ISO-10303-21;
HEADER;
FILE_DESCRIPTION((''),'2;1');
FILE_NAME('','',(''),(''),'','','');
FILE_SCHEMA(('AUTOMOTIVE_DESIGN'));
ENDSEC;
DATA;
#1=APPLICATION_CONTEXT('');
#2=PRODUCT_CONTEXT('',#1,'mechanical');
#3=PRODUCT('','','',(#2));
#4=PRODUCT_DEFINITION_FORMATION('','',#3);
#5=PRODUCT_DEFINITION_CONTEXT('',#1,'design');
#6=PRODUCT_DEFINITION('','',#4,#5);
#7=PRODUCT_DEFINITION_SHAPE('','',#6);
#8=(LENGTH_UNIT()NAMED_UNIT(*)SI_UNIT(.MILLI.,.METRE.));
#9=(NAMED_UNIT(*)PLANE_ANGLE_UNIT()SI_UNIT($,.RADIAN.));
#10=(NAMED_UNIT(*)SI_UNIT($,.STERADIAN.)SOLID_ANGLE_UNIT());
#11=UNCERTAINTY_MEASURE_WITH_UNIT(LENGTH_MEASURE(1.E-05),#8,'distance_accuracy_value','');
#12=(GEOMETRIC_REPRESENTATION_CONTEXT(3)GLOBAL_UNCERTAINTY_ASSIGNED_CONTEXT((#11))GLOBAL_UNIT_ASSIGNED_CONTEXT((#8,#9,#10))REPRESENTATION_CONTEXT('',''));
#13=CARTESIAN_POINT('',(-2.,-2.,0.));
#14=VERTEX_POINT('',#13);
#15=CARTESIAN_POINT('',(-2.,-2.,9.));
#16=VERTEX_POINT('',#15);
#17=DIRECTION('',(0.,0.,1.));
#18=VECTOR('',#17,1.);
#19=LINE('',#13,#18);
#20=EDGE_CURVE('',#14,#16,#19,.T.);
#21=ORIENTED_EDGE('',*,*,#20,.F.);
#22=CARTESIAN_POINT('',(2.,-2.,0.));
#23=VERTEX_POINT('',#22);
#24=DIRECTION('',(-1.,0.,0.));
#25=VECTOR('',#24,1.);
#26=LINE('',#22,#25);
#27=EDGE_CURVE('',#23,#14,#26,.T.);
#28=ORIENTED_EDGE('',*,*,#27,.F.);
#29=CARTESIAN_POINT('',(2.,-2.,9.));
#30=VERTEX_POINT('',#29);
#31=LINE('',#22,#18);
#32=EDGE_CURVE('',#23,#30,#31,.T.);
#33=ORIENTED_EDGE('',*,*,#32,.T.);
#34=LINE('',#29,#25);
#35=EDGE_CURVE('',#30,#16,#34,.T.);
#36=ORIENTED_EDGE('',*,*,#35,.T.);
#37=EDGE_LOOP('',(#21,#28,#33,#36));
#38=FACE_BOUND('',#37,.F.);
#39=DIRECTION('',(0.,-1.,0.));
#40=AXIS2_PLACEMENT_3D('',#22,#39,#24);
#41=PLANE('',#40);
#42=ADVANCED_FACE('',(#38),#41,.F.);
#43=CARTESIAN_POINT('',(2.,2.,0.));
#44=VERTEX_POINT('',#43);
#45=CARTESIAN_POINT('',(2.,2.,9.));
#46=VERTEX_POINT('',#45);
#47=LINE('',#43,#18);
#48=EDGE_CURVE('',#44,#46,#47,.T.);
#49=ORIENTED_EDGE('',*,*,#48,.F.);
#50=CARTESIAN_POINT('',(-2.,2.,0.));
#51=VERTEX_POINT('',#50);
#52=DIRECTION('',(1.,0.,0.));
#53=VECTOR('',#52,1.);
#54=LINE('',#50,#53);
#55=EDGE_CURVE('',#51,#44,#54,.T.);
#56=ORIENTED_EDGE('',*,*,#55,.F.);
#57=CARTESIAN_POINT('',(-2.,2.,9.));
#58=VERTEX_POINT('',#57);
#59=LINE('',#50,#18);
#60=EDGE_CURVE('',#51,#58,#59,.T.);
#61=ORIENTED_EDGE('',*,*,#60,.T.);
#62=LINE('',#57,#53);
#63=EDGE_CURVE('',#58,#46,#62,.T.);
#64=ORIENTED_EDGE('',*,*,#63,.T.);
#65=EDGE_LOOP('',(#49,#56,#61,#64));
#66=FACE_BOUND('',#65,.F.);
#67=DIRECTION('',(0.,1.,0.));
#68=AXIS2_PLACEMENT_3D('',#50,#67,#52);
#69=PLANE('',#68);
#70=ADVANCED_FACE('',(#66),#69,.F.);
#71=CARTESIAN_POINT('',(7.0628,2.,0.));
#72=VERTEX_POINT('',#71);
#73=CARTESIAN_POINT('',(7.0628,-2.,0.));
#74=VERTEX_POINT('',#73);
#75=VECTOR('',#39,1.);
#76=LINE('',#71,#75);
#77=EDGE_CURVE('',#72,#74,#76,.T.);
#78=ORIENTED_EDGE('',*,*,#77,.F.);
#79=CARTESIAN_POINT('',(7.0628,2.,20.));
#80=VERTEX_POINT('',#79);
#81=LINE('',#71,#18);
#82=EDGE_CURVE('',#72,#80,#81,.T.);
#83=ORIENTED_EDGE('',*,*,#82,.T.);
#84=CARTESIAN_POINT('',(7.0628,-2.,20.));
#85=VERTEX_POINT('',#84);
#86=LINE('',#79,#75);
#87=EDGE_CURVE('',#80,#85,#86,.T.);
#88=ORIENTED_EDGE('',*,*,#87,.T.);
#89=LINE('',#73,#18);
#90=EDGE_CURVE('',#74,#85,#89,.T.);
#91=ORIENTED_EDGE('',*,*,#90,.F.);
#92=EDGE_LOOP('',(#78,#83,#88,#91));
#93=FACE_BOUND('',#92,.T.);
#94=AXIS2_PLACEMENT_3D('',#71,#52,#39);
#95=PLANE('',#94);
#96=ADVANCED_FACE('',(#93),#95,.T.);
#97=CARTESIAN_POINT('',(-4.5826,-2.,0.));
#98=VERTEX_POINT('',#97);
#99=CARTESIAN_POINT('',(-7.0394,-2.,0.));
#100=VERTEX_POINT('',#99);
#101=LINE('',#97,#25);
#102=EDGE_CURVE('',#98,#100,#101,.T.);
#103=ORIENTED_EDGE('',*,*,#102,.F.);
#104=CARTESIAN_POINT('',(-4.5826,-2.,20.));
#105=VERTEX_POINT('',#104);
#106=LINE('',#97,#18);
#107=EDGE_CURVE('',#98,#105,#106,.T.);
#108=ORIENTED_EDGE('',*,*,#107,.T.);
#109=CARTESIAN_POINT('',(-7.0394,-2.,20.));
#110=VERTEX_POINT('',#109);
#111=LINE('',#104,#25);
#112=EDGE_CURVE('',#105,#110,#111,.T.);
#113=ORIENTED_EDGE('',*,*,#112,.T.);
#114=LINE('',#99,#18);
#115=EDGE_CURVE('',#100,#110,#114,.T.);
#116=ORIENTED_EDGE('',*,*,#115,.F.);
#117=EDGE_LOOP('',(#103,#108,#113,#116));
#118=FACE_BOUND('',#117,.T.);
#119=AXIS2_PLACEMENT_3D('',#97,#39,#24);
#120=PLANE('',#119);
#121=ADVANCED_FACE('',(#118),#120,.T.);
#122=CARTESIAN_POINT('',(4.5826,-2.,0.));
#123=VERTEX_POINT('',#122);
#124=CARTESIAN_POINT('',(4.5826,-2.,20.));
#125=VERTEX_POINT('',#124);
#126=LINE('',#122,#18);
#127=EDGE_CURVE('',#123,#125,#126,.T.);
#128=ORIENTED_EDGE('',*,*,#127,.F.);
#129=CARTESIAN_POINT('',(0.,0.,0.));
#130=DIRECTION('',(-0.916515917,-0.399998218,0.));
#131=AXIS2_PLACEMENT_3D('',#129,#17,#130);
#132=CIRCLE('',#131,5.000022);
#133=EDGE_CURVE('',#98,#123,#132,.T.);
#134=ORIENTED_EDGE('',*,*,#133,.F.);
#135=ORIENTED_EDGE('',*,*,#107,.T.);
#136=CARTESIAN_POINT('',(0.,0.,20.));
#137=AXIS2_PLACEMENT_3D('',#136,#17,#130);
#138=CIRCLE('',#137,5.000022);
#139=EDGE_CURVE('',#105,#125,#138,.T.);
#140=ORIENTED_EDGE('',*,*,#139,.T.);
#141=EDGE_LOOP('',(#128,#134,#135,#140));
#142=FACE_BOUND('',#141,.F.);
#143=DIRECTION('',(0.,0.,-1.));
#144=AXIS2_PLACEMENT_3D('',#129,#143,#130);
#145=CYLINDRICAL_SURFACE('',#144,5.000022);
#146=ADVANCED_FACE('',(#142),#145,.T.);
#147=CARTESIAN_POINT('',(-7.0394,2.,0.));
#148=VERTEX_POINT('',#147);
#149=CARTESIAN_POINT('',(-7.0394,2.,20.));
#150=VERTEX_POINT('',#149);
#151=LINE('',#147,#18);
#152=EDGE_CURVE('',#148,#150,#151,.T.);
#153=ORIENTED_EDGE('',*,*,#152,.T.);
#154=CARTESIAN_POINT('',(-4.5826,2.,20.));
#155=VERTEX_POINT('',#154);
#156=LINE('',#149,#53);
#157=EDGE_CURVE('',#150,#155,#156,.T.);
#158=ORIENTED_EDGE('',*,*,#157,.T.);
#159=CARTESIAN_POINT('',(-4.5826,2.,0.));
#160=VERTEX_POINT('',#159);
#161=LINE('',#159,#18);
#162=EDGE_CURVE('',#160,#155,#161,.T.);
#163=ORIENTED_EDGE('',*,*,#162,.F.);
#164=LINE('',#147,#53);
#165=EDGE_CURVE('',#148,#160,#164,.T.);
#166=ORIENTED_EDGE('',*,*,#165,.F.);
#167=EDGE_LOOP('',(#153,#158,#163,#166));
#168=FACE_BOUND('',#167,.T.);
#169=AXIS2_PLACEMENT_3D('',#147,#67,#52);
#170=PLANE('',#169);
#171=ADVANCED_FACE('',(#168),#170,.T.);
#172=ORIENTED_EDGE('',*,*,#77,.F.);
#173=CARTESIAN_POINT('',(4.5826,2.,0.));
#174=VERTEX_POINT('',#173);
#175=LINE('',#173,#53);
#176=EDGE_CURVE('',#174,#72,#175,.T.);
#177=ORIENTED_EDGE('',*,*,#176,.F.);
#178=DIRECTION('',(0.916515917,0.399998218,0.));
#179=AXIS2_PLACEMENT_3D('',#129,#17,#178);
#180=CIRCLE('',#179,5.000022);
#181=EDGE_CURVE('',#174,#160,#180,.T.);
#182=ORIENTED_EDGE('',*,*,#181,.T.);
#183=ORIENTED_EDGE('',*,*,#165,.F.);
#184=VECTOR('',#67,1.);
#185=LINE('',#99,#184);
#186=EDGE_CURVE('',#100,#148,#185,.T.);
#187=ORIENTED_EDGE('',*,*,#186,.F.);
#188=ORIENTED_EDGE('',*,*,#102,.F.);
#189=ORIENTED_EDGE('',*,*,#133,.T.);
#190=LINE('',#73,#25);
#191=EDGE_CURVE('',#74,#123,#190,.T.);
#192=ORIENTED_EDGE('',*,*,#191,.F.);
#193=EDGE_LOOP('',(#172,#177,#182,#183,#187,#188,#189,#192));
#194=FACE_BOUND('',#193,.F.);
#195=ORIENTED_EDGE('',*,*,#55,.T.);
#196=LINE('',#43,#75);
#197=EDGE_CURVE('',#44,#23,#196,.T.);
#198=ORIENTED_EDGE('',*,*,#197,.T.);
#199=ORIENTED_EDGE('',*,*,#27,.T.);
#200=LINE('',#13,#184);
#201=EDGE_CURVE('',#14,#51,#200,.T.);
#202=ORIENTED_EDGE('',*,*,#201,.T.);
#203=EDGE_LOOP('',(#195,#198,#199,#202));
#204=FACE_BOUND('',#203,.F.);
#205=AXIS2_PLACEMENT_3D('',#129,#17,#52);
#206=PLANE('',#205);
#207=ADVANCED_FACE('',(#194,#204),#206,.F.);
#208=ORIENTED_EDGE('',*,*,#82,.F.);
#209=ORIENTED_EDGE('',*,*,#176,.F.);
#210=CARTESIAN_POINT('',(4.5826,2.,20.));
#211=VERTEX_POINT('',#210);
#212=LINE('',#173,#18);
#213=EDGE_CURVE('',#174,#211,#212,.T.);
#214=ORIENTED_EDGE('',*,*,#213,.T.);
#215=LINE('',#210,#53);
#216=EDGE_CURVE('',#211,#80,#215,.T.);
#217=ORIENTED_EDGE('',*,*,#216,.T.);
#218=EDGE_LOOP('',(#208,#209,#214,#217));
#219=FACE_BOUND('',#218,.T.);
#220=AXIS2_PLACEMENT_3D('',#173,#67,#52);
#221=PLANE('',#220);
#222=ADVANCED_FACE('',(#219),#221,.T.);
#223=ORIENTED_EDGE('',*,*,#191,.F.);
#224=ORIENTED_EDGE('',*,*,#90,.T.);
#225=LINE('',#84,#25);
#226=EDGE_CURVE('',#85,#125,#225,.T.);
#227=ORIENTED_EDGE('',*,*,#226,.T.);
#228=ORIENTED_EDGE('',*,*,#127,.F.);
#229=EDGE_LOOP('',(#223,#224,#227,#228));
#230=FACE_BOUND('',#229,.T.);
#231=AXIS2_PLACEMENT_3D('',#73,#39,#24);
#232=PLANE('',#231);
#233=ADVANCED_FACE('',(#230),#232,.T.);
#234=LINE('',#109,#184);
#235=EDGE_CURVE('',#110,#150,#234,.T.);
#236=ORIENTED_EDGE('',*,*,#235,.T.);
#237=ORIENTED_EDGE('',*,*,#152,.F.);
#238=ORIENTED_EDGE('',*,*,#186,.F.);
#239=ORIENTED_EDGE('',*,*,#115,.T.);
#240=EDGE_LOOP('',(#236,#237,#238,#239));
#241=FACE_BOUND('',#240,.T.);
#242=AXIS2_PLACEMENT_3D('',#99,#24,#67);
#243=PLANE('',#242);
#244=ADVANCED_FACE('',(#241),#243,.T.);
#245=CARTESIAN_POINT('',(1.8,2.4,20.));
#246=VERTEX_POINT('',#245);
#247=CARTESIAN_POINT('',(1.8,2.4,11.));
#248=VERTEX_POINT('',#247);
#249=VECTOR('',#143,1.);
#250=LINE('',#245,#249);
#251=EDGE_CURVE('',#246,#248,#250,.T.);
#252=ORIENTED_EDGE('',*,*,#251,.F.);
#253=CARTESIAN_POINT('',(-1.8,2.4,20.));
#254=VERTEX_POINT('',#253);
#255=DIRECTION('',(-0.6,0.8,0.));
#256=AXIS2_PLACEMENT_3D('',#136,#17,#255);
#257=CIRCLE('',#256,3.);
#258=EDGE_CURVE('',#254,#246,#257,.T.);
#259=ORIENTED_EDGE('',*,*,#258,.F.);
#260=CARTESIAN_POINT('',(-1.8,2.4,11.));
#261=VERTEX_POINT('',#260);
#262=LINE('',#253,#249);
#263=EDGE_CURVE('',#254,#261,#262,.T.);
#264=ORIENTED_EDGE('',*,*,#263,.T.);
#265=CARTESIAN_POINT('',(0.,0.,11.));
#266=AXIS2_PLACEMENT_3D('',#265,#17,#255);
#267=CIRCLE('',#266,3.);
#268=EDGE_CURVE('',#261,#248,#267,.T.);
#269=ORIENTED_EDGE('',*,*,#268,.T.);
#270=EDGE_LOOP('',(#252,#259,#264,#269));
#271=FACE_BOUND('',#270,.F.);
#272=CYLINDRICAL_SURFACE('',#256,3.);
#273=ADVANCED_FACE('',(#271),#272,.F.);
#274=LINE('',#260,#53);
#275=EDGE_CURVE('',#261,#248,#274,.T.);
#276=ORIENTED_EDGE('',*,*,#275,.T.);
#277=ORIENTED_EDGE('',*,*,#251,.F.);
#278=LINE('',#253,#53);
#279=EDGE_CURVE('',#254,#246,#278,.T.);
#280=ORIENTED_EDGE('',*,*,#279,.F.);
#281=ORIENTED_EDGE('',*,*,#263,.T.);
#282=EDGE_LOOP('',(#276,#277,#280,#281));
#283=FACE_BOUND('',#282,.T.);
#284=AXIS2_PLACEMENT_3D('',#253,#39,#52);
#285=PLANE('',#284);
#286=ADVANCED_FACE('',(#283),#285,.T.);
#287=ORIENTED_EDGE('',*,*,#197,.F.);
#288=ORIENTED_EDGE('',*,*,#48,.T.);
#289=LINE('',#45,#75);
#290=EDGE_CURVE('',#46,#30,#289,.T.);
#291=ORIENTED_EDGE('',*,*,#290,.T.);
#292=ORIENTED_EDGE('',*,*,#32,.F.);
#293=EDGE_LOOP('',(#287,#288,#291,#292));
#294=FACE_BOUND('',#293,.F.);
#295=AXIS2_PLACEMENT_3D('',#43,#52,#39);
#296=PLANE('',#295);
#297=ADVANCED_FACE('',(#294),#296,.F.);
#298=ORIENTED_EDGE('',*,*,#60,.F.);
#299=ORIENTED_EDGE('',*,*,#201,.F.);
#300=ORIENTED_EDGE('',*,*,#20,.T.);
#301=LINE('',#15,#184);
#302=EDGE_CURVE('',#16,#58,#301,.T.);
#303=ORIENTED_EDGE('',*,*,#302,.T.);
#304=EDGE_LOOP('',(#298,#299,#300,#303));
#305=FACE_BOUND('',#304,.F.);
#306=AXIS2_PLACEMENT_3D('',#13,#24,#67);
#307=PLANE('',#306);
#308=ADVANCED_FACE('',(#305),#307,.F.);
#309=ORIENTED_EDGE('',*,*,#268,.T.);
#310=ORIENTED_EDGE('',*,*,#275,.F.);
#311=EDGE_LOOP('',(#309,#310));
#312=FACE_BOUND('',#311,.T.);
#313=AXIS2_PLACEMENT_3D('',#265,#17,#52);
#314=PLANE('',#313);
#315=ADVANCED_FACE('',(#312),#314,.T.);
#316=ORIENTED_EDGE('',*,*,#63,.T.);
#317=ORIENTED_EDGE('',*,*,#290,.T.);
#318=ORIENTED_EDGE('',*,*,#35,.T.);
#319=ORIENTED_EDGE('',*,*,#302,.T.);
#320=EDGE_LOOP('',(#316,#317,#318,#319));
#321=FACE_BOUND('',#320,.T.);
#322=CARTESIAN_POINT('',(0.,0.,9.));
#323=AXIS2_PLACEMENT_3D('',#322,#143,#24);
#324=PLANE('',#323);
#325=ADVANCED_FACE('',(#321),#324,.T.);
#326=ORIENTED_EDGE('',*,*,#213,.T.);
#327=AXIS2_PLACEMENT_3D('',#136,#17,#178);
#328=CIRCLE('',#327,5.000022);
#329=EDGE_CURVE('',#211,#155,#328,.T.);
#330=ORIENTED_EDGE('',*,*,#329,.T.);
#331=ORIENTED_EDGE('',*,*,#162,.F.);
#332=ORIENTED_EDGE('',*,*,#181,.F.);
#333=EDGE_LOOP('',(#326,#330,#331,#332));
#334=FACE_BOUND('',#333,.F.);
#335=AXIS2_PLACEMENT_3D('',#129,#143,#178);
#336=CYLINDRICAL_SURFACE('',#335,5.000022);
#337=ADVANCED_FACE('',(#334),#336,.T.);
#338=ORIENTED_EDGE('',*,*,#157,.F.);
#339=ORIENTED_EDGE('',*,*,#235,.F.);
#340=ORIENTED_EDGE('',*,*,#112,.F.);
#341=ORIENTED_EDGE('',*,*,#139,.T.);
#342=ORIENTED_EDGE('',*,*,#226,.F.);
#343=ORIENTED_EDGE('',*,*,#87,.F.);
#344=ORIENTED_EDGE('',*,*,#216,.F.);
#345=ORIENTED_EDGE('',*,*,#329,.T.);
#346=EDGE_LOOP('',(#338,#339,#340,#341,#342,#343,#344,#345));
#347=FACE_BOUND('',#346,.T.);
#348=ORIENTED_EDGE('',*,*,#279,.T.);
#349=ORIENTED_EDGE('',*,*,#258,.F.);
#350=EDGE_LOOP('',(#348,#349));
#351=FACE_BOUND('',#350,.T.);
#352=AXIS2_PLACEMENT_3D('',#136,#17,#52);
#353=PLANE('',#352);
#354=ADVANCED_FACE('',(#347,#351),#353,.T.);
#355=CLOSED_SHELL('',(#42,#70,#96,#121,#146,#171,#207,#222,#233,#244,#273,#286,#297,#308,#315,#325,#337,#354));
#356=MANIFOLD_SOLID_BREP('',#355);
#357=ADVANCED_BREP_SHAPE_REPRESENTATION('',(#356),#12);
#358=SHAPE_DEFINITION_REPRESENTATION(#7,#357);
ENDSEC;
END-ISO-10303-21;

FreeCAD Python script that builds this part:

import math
import FreeCAD as App
import Part
import Sketcher


def add_polygon(sketch, points):
    """Adds a closed chain of lines whose ends are joined by coincident constraints."""
    first, n = sketch.GeometryCount, len(points)
    for a, b in zip(points, points[1:] + points[:1]):
        sketch.addGeometry(Part.LineSegment(App.Vector(*a, 0), App.Vector(*b, 0)), False)
    for i in range(n):
        sketch.addConstraint(Sketcher.Constraint("Coincident", first + i, 2, first + (i + 1) % n, 1))

doc = App.newDocument("Part")
body = doc.addObject("PartDesign::Body", "Body")

# Sketch on XY plane
sketch1 = body.newObject("Sketcher::SketchObject", "Sketch")
sketch1.AttachmentSupport = (doc.getObject("XY_Plane"), [""])
sketch1.MapMode = "FlatFace"
sketch1.addGeometry([
    Part.LineSegment(App.Vector(7.0628, -2, 0), App.Vector(7.0628, 2, 0)),  # 0
    Part.LineSegment(App.Vector(7.0628, 2, 0), App.Vector(4.5826, 2, 0)),  # 1
    Part.ArcOfCircle(Part.Circle(App.Vector(0, 0, 0), App.Vector(0, 0, 1), 5.000022), math.radians(23.578067), math.radians(156.421933)),  # 2
    Part.LineSegment(App.Vector(-4.5826, 2, 0), App.Vector(-7.0394, 2, 0)),  # 3
    Part.LineSegment(App.Vector(-7.0394, 2, 0), App.Vector(-7.0394, -2, 0)),  # 4
    Part.LineSegment(App.Vector(-7.0394, -2, 0), App.Vector(-4.5826, -2, 0)),  # 5
    Part.ArcOfCircle(Part.Circle(App.Vector(0, 0, 0), App.Vector(0, 0, 1), 5.000022), math.radians(-156.421933), math.radians(-23.578067)),  # 6
    Part.LineSegment(App.Vector(4.5826, -2, 0), App.Vector(7.0628, -2, 0)),  # 7
], False)
sketch1.addConstraint([
    Sketcher.Constraint("Coincident", 0, 2, 1, 1),
    Sketcher.Constraint("Coincident", 1, 2, 2, 1),
    Sketcher.Constraint("Coincident", 2, 2, 3, 1),
    Sketcher.Constraint("Coincident", 3, 2, 4, 1),
    Sketcher.Constraint("Coincident", 4, 2, 5, 1),
    Sketcher.Constraint("Coincident", 5, 2, 6, 1),
    Sketcher.Constraint("Coincident", 6, 2, 7, 1),
    Sketcher.Constraint("Coincident", 7, 2, 0, 1),
    Sketcher.Constraint("Vertical", 0),
    Sketcher.Constraint("Horizontal", 1),
    Sketcher.Constraint("Horizontal", 3),
    Sketcher.Constraint("Vertical", 4),
    Sketcher.Constraint("Horizontal", 5),
    Sketcher.Constraint("Horizontal", 7),
    Sketcher.Constraint("Coincident", 2, 3, -1, 1),
    Sketcher.Constraint("Coincident", 6, 3, -1, 1),
    Sketcher.Constraint("Equal", 2, 6),
    Sketcher.Constraint("Horizontal", 1, 2, 2, 2),
    Sketcher.Constraint("Horizontal", 5, 2, 6, 2),
    Sketcher.Constraint("Vertical", 2, 2, 5, 2),
    Sketcher.Constraint("Radius", 2, 5.0),
    Sketcher.Constraint("DistanceY", 0, 1, 0, 2, 4.0),
    Sketcher.Constraint("DistanceX", 1, 2, 1, 1, 2.4802),
    Sketcher.Constraint("DistanceX", 3, 2, 3, 1, 2.4568),
])
pad1 = body.newObject("PartDesign::Pad", "Pad")
pad1.Profile = sketch1
pad1.Length = 20

# Sketch on XY plane
sketch2 = body.newObject("Sketcher::SketchObject", "Sketch001")
sketch2.AttachmentSupport = (doc.getObject("XY_Plane"), [""])
sketch2.MapMode = "FlatFace"
sketch2.AttachmentOffset = App.Placement(App.Vector(0, 0, 20), App.Rotation())
sketch2.addGeometry([
    Part.LineSegment(App.Vector(1.8, 2.4, 0), App.Vector(-1.8, 2.4, 0)),
    Part.ArcOfCircle(Part.Circle(App.Vector(0, 0, 0), App.Vector(0, 0, 1), 3), math.radians(126.869898), math.radians(413.130102)),
], False)
sketch2.addConstraint([
    Sketcher.Constraint("Coincident", 0, 1, 1, 2),
    Sketcher.Constraint("Coincident", 1, 1, 0, 2),
    Sketcher.Constraint("Horizontal", 0),
    Sketcher.Constraint("Coincident", 1, 3, -1, 1),
    Sketcher.Constraint("Radius", 1, 3.0),
    Sketcher.Constraint("DistanceX", 0, 2, 0, 1, 3.6),
])
pocket1 = body.newObject("PartDesign::Pocket", "Pocket")
pocket1.Profile = sketch2
pocket1.Length = 9

# Sketch on XY plane
sketch3 = body.newObject("Sketcher::SketchObject", "Sketch002")
sketch3.AttachmentSupport = (doc.getObject("XY_Plane"), [""])
sketch3.MapMode = "FlatFace"
add_polygon(sketch3, [(-2, -2), (-2, 2), (2, 2), (2, -2)])  # lines 0-3
sketch3.addConstraint([
    Sketcher.Constraint("Vertical", 0),
    Sketcher.Constraint("Horizontal", 1),
    Sketcher.Constraint("Vertical", 2),
    Sketcher.Constraint("Horizontal", 3),
    Sketcher.Constraint("Symmetric", 0, 2, 2, 2, -1, 1),
    Sketcher.Constraint("Equal", 3, 0),
    Sketcher.Constraint("DistanceX", 1, 1, 1, 2, 4.0),
])
pocket2 = body.newObject("PartDesign::Pocket", "Pocket001")
pocket2.Profile = sketch3
pocket2.Length = 9
pocket2.Reversed = True

doc.recompute()
